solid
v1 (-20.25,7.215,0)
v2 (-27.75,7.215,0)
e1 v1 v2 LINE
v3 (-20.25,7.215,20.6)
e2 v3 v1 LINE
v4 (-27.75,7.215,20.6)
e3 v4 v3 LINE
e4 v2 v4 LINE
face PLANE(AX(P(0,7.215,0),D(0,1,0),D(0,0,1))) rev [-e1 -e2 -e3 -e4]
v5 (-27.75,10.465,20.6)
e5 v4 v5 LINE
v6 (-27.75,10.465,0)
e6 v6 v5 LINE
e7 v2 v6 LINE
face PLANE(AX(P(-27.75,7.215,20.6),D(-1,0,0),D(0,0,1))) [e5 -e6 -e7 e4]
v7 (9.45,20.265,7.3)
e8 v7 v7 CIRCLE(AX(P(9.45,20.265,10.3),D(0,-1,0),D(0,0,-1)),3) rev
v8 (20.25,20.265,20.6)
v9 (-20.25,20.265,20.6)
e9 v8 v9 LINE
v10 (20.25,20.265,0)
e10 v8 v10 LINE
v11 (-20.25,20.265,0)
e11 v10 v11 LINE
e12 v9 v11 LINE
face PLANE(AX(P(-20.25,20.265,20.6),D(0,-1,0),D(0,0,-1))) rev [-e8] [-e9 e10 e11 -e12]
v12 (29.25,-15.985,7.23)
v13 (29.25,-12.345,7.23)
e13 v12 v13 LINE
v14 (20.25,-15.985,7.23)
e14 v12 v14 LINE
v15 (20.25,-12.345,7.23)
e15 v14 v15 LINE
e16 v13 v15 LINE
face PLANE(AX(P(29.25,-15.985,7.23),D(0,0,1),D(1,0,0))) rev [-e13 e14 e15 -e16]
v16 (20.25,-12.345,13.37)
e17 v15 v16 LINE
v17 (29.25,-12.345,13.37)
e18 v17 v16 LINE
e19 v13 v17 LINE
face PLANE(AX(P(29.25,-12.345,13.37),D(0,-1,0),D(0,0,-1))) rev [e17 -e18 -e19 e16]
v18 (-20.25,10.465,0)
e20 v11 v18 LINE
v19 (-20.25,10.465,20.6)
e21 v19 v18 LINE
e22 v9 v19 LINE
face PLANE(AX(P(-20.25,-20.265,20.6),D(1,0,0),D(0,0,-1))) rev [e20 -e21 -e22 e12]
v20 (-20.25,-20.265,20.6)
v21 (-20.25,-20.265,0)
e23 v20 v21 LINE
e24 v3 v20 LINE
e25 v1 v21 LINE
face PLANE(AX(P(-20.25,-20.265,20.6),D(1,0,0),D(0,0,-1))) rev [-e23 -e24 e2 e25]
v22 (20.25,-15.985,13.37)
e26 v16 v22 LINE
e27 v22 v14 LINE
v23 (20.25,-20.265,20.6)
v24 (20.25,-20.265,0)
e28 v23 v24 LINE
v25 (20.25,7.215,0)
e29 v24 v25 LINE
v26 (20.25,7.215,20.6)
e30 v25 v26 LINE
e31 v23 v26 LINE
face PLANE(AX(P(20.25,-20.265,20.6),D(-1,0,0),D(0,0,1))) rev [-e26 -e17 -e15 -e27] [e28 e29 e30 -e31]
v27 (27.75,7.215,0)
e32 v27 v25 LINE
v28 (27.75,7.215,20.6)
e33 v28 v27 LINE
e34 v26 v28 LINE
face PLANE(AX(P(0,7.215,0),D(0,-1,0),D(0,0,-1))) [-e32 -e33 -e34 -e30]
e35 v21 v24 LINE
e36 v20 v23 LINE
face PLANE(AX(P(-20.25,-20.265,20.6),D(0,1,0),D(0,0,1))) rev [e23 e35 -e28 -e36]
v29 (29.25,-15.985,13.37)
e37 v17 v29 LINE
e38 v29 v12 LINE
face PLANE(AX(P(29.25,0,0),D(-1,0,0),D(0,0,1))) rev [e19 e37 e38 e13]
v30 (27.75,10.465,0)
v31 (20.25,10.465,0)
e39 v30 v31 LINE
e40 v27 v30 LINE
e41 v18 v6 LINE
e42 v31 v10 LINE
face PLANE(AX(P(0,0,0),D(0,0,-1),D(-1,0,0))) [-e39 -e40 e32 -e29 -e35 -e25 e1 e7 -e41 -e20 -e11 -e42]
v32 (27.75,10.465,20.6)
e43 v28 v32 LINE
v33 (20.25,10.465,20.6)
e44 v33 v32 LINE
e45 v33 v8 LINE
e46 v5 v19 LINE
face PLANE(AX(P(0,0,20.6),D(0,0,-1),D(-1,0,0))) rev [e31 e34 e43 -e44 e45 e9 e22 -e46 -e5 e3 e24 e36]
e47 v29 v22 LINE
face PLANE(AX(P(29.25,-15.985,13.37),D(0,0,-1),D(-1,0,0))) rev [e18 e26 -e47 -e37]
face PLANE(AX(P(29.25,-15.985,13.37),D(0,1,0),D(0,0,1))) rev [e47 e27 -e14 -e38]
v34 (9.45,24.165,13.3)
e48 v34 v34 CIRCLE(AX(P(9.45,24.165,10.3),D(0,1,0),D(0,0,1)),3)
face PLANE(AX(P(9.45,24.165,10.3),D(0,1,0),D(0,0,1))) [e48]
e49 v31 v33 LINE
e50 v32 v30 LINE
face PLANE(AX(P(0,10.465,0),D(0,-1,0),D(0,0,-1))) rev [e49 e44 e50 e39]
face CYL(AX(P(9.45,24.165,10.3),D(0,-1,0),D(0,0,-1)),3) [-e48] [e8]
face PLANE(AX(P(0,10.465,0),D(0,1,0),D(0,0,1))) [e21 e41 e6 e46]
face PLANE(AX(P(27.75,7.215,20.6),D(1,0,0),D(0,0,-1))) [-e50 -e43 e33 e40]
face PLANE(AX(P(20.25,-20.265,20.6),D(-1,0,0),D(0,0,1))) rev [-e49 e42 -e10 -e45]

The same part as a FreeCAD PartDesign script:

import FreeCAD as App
import Part
import Sketcher

V = App.Vector
Q = App.Units.Quantity

doc = App.newDocument("Part")
body = doc.addObject("PartDesign::Body", "Body")

# Sketch on XY plane
sketch1 = body.newObject("Sketcher::SketchObject", "Sketch")
sketch1.AttachmentSupport = (doc.getObject("XY_Plane"), [""])
sketch1.MapMode = "FlatFace"
sketch1.addGeometry(Part.LineSegment(V(-20.25, 20.265, 0), V(-20.25, -20.265, 0)), False)
sketch1.addGeometry(Part.LineSegment(V(-20.25, -20.265, 0), V(20.25, -20.265, 0)), False)
sketch1.addGeometry(Part.LineSegment(V(20.25, -20.265, 0), V(20.25, 20.265, 0)), False)
sketch1.addGeometry(Part.LineSegment(V(20.25, 20.265, 0), V(-20.25, 20.265, 0)), False)
sketch1.addConstraint(Sketcher.Constraint("Coincident", 0, 2, 1, 1))
sketch1.addConstraint(Sketcher.Constraint("Coincident", 1, 2, 2, 1))
sketch1.addConstraint(Sketcher.Constraint("Coincident", 2, 2, 3, 1))
sketch1.addConstraint(Sketcher.Constraint("Coincident", 3, 2, 0, 1))
sketch1.addConstraint(Sketcher.Constraint("Vertical", 0))
sketch1.addConstraint(Sketcher.Constraint("Horizontal", 1))
sketch1.addConstraint(Sketcher.Constraint("Vertical", 2))
sketch1.addConstraint(Sketcher.Constraint("Horizontal", 3))
sketch1.addConstraint(Sketcher.Constraint("Symmetric", 0, 2, 2, 2, -1, 1))
sketch1.addConstraint(Sketcher.Constraint("DistanceX", 1, 1, 1, 2, Q("40.5 mm")))
sketch1.addConstraint(Sketcher.Constraint("DistanceY", 0, 2, 0, 1, Q("40.53 mm")))
pad1 = body.newObject("PartDesign::Pad", "Pad")
pad1.Profile = sketch1
pad1.Length = 20.6

# Sketch on XZ plane
sketch2 = body.newObject("Sketcher::SketchObject", "Sketch001")
sketch2.AttachmentSupport = (doc.getObject("XZ_Plane"), [""])
sketch2.MapMode = "FlatFace"
sketch2.AttachmentOffset = App.Placement(V(0, 0, -10.465), App.Rotation())
sketch2.addGeometry(Part.LineSegment(V(-27.75, 0, 0), V(-27.75, 20.6, 0)), False)
sketch2.addGeometry(Part.LineSegment(V(-27.75, 20.6, 0), V(-20.25, 20.6, 0)), False)
sketch2.addGeometry(Part.LineSegment(V(-20.25, 20.6, 0), V(-20.25, 0, 0)), False)
sketch2.addGeometry(Part.LineSegment(V(-20.25, 0, 0), V(-27.75, 0, 0)), False)
sketch2.addGeometry(Part.LineSegment(V(20.25, 0, 0), V(20.25, 20.6, 0)), False)
sketch2.addGeometry(Part.LineSegment(V(20.25, 20.6, 0), V(27.75, 20.6, 0)), False)
sketch2.addGeometry(Part.LineSegment(V(27.75, 20.6, 0), V(27.75, 0, 0)), False)
sketch2.addGeometry(Part.LineSegment(V(27.75, 0, 0), V(20.25, 0, 0)), False)
sketch2.addConstraint(Sketcher.Constraint("Coincident", 0, 2, 1, 1))
sketch2.addConstraint(Sketcher.Constraint("Coincident", 1, 2, 2, 1))
sketch2.addConstraint(Sketcher.Constraint("Coincident", 2, 2, 3, 1))
sketch2.addConstraint(Sketcher.Constraint("Coincident", 3, 2, 0, 1))
sketch2.addConstraint(Sketcher.Constraint("Coincident", 4, 2, 5, 1))
sketch2.addConstraint(Sketcher.Constraint("Coincident", 5, 2, 6, 1))
sketch2.addConstraint(Sketcher.Constraint("Coincident", 6, 2, 7, 1))
sketch2.addConstraint(Sketcher.Constraint("Coincident", 7, 2, 4, 1))
sketch2.addConstraint(Sketcher.Constraint("Vertical", 0))
sketch2.addConstraint(Sketcher.Constraint("Horizontal", 1))
sketch2.addConstraint(Sketcher.Constraint("Vertical", 2))
sketch2.addConstraint(Sketcher.Constraint("Horizontal", 3))
sketch2.addConstraint(Sketcher.Constraint("Vertical", 4))
sketch2.addConstraint(Sketcher.Constraint("Horizontal", 5))
sketch2.addConstraint(Sketcher.Constraint("Vertical", 6))
sketch2.addConstraint(Sketcher.Constraint("Horizontal", 7))
sketch2.addConstraint(Sketcher.Constraint("Symmetric", 3, 2, 6, 2, -1, 1))
sketch2.addConstraint(Sketcher.Constraint("Symmetric", 1, 2, 4, 2, -2))
sketch2.addConstraint(Sketcher.Constraint("PointOnObject", 2, 2, -1))
sketch2.addConstraint(Sketcher.Constraint("DistanceX", 1, 1, 1, 2, Q("7.5 mm")))
sketch2.addConstraint(Sketcher.Constraint("DistanceY", 0, 1, 0, 2, Q("20.6 mm")))
sketch2.addConstraint(Sketcher.Constraint("DistanceX", 0, 2, 4, 2, Q("48 mm")))
pad2 = body.newObject("PartDesign::Pad", "Pad001")
pad2.Profile = sketch2
pad2.Length = 3.25

# Sketch on XZ plane
sketch3 = body.newObject("Sketcher::SketchObject", "Sketch002")
sketch3.AttachmentSupport = (doc.getObject("XZ_Plane"), [""])
sketch3.MapMode = "FlatFace"
sketch3.AttachmentOffset = App.Placement(V(0, 0, -20.265), App.Rotation())
sketch3.addGeometry(Part.Circle(V(9.45, 10.3, 0), V(0, 0, 1), 3), False)
sketch3.addConstraint(Sketcher.Constraint("Diameter", 0, Q("6 mm")))
sketch3.addConstraint(Sketcher.Constraint("DistanceY", -1, 1, 0, 3, Q("10.3 mm")))
sketch3.addConstraint(Sketcher.Constraint("DistanceX", -1, 1, 0, 3, Q("9.45 mm")))
pad3 = body.newObject("PartDesign::Pad", "Pad002")
pad3.Profile = sketch3
pad3.Length = 3.9
pad3.Reversed = True

# Sketch on YZ plane
sketch4 = body.newObject("Sketcher::SketchObject", "Sketch003")
sketch4.AttachmentSupport = (doc.getObject("YZ_Plane"), [""])
sketch4.MapMode = "FlatFace"
sketch4.AttachmentOffset = App.Placement(V(0, 0, 20.25), App.Rotation())
sketch4.addGeometry(Part.LineSegment(V(-12.345, 13.37, 0), V(-15.985, 13.37, 0)), False)
sketch4.addGeometry(Part.LineSegment(V(-15.985, 13.37, 0), V(-15.985, 7.23, 0)), False)
sketch4.addGeometry(Part.LineSegment(V(-15.985, 7.23, 0), V(-12.345, 7.23, 0)), False)
sketch4.addGeometry(Part.LineSegment(V(-12.345, 7.23, 0), V(-12.345, 13.37, 0)), False)
sketch4.addConstraint(Sketcher.Constraint("Coincident", 0, 2, 1, 1))
sketch4.addConstraint(Sketcher.Constraint("Coincident", 1, 2, 2, 1))
sketch4.addConstraint(Sketcher.Constraint("Coincident", 2, 2, 3, 1))
sketch4.addConstraint(Sketcher.Constraint("Coincident", 3, 2, 0, 1))
sketch4.addConstraint(Sketcher.Constraint("Horizontal", 0))
sketch4.addConstraint(Sketcher.Constraint("Vertical", 1))
sketch4.addConstraint(Sketcher.Constraint("Horizontal", 2))
sketch4.addConstraint(Sketcher.Constraint("Vertical", 3))
sketch4.addConstraint(Sketcher.Constraint("DistanceX", 0, 2, 0, 1, Q("3.64 mm")))
sketch4.addConstraint(Sketcher.Constraint("DistanceY", 1, 2, 1, 1, Q("6.14 mm")))
sketch4.addConstraint(Sketcher.Constraint("DistanceY", -1, 1, 0, 2, Q("13.37 mm")))
sketch4.addConstraint(Sketcher.Constraint("DistanceX", 0, 2, -1, 1, Q("15.985 mm")))
pad4 = body.newObject("PartDesign::Pad", "Pad003")
pad4.Profile = sketch4
pad4.Length = 9

doc.recompute()
